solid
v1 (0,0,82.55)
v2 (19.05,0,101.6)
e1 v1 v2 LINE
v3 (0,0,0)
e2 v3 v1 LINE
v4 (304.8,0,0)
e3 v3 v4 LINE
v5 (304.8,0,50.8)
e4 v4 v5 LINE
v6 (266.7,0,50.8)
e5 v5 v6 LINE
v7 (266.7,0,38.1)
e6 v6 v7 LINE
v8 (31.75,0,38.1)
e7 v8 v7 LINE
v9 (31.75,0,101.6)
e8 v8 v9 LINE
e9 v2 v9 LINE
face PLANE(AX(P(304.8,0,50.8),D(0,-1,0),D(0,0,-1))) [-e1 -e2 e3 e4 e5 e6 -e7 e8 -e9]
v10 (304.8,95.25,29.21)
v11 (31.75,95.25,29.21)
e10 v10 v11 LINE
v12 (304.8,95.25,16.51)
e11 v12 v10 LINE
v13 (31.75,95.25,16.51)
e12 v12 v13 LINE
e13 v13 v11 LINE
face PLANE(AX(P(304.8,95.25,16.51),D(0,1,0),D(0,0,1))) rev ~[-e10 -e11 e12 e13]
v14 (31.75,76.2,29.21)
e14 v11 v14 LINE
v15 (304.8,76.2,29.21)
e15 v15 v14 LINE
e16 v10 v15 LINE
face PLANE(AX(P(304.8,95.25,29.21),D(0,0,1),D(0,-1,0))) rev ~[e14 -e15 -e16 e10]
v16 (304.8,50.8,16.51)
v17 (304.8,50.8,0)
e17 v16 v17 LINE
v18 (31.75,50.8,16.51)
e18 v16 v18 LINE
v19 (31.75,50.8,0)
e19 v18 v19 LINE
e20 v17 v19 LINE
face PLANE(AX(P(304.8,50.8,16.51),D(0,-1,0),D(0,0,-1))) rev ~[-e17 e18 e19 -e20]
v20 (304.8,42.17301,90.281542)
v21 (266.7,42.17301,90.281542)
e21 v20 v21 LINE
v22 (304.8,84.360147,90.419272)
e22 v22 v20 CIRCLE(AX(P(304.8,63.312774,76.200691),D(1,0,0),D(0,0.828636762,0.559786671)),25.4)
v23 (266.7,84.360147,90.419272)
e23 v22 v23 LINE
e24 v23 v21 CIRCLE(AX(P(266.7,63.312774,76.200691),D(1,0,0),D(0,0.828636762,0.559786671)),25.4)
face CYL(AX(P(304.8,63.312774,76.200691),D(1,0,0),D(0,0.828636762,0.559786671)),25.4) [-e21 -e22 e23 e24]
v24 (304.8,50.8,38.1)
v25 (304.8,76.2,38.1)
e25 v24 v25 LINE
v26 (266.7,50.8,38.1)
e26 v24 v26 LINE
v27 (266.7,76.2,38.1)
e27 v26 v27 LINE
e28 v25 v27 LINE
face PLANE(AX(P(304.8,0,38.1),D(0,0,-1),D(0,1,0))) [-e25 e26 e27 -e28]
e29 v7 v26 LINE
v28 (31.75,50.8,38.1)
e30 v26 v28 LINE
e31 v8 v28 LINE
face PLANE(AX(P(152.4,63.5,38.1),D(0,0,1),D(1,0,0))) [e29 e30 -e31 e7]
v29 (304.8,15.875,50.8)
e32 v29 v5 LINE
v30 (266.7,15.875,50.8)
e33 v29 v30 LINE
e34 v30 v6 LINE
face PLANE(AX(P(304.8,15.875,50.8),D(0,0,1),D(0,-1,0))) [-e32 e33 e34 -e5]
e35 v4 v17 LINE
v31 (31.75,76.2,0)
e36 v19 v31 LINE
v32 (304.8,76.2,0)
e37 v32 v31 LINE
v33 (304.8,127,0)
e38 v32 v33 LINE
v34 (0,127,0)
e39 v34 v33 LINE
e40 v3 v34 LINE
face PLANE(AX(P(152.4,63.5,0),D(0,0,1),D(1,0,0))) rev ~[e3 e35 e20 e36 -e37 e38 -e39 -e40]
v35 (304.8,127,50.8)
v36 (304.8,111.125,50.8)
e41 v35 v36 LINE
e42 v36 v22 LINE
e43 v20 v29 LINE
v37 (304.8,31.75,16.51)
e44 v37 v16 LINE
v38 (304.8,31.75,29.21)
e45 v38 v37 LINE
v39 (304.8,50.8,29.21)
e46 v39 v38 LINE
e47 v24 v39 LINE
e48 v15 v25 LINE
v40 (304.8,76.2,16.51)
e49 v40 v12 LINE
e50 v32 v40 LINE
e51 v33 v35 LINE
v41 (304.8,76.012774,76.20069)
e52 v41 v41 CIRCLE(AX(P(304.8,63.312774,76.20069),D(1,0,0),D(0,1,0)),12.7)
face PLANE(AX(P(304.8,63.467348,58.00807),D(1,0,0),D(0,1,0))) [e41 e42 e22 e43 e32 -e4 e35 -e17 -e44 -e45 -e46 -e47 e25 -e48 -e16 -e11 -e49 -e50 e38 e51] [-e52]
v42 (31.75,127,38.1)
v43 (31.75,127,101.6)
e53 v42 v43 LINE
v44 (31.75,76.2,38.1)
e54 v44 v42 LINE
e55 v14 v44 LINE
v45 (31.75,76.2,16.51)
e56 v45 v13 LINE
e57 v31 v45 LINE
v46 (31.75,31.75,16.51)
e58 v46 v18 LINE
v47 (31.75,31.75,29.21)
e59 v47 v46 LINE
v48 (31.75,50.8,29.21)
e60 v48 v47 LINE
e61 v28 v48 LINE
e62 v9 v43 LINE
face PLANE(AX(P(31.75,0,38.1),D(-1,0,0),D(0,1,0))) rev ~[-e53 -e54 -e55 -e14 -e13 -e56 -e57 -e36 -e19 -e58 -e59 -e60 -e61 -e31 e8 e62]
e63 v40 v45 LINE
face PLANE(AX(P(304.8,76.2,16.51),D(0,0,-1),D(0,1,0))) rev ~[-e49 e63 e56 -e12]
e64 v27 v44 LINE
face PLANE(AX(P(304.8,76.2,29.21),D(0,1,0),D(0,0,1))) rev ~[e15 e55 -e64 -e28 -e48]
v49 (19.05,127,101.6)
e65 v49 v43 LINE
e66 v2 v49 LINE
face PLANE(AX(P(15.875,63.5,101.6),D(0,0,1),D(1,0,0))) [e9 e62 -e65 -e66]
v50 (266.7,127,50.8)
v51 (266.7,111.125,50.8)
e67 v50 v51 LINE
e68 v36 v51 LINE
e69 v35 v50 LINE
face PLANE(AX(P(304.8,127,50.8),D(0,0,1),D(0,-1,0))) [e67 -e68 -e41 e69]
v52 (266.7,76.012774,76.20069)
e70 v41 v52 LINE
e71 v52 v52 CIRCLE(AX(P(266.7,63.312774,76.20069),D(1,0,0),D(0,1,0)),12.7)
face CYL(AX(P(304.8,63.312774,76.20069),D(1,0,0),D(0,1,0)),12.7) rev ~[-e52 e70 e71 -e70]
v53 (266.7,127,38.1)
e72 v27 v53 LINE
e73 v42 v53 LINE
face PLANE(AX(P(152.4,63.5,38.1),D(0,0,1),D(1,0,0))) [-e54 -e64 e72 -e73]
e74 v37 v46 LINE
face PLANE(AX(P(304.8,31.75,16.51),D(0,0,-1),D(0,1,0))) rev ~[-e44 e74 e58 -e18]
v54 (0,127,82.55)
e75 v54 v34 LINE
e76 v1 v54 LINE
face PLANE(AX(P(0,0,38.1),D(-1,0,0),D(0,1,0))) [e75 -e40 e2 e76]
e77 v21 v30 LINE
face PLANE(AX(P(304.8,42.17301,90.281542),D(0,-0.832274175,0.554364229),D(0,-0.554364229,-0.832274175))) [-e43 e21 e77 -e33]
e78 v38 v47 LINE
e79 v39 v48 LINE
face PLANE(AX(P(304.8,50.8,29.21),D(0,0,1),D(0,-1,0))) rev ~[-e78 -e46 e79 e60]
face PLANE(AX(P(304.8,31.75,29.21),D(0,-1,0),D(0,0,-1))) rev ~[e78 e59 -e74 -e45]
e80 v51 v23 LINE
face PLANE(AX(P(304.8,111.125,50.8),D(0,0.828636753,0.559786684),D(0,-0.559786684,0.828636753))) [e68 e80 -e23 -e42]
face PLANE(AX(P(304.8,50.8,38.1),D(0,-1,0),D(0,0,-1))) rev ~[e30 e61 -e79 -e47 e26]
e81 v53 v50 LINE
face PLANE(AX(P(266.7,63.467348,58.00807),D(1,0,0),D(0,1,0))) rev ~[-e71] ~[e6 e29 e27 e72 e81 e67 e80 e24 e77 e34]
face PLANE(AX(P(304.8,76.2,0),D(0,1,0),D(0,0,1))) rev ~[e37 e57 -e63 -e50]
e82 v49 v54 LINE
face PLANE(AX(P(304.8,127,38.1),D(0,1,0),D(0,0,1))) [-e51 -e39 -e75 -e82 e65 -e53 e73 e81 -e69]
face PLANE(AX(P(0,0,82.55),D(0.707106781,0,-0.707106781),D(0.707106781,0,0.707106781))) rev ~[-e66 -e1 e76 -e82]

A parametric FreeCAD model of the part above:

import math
import FreeCAD as App
import Part
import Sketcher

V = App.Vector
Q = App.Units.Quantity


def add_polygon(sketch, points):
    """Adds a closed chain of lines whose ends are joined by coincident constraints."""
    first, n = sketch.GeometryCount, len(points)
    for a, b in zip(points, points[1:] + points[:1]):
        sketch.addGeometry(Part.LineSegment(App.Vector(*a, 0), App.Vector(*b, 0)), False)
    for i in range(n):
        sketch.addConstraint(Sketcher.Constraint("Coincident", first + i, 2, first + (i + 1) % n, 1))

doc = App.newDocument("Part")
body = doc.addObject("PartDesign::Body", "Body")

sketch1 = body.newObject("Sketcher::SketchObject", "Sketch")
sketch1.AttachmentSupport = (doc.getObject("XY_Plane"), [""])
sketch1.MapMode = "FlatFace"
add_polygon(sketch1, [(0, 127), (0, 0), (305, 0), (305, 127)])
sketch1.addConstraint([
    Sketcher.Constraint("Vertical", 0),
    Sketcher.Constraint("Horizontal", 1),
    Sketcher.Constraint("Vertical", 2),
    Sketcher.Constraint("Horizontal", 3),
    Sketcher.Constraint("Coincident", 0, 2, -1, 1),
    Sketcher.Constraint("DistanceX", 1, 1, 1, 2, Q("12 in")),
    Sketcher.Constraint("DistanceY", 0, 2, 0, 1, Q("5 in")),
])
pad1 = body.newObject("PartDesign::Pad", "Pad")
pad1.Profile = sketch1
pad1.Length = Q("1.5 in")

sketch2 = body.newObject("Sketcher::SketchObject", "Sketch001")
sketch2.AttachmentSupport = (doc.getObject("XY_Plane"), [""])
sketch2.MapMode = "FlatFace"
sketch2.AttachmentOffset = App.Placement(V(0, 0, 1.5 * 25.4), App.Rotation())
add_polygon(sketch2, [(0, 127), (0, 0), (32, 0), (32, 127)])
sketch2.addConstraint([
    Sketcher.Constraint("Vertical", 0),
    Sketcher.Constraint("Horizontal", 1),
    Sketcher.Constraint("Vertical", 2),
    Sketcher.Constraint("Horizontal", 3),
    Sketcher.Constraint("Coincident", 0, 2, -1, 1),
    Sketcher.Constraint("DistanceY", 0, 2, 0, 1, Q("5 in")),
    Sketcher.Constraint("DistanceX", 1, 1, 1, 2, Q("1.25 in")),
])
pad2 = body.newObject("PartDesign::Pad", "Pad001")
pad2.Profile = sketch2
pad2.Length = Q("2.5 in")

sketch3 = body.newObject("Sketcher::SketchObject", "Sketch002")
sketch3.AttachmentSupport = (doc.getObject("XZ_Plane"), [""])
sketch3.MapMode = "FlatFace"
add_polygon(sketch3, [(19, 102), (0, 102), (0, 83)])
sketch3.addConstraint([
    Sketcher.Constraint("Horizontal", 0),
    Sketcher.Constraint("Vertical", 1),
    Sketcher.Constraint("PointOnObject", 0, 2, -2),
    Sketcher.Constraint("Equal", 0, 1),
    Sketcher.Constraint("DistanceY", -1, 1, 0, 2, Q("4 in")),
    Sketcher.Constraint("DistanceX", 0, 2, 0, 1, Q("0.75 in")),
])
pocket1 = body.newObject("PartDesign::Pocket", "Pocket")
pocket1.Profile = sketch3
pocket1.Type = "ThroughAll"

sketch4 = body.newObject("Sketcher::SketchObject", "Sketch003")
sketch4.AttachmentSupport = (doc.getObject("YZ_Plane"), [""])
sketch4.MapMode = "FlatFace"
sketch4.AttachmentOffset = App.Placement(V(0, 0, 12 * 25.4), App.Rotation())
add_polygon(sketch4, [(51, 17), (51, 0), (76, 0), (76, 17), (95, 17), (95, 29), (76, 29), (76, 38), (51, 38), (51, 29), (32, 29), (32, 17)])
sketch4.addConstraint([
    Sketcher.Constraint("Vertical", 0),
    Sketcher.Constraint("Horizontal", 1),
    Sketcher.Constraint("Vertical", 2),
    Sketcher.Constraint("Horizontal", 3),
    Sketcher.Constraint("Vertical", 4),
    Sketcher.Constraint("Horizontal", 5),
    Sketcher.Constraint("Vertical", 6),
    Sketcher.Constraint("Horizontal", 7),
    Sketcher.Constraint("Vertical", 8),
    Sketcher.Constraint("Horizontal", 9),
    Sketcher.Constraint("Vertical", 10),
    Sketcher.Constraint("Horizontal", 11),
    Sketcher.Constraint("PointOnObject", 0, 2, -1),
    Sketcher.Constraint("Horizontal", 5, 2, 8, 2),
    Sketcher.Constraint("Horizontal", 3, 2, 10, 2),
    Sketcher.Constraint("Vertical", 2, 2, 5, 2),
    Sketcher.Constraint("Vertical", 0, 2, 7, 2),
    Sketcher.Constraint("Equal", 5, 9),
    Sketcher.Constraint("DistanceX", 1, 1, 1, 2, Q("1 in")),
    Sketcher.Constraint("DistanceY", 4, 1, 4, 2, Q("0.5 in")),
    Sketcher.Constraint("DistanceX", -1, 1, 0, 2, Q("2 in")),
    Sketcher.Constraint("DistanceX", 3, 1, 3, 2, Q("0.75 in")),
    Sketcher.Constraint("DistanceY", 0, 2, 0, 1, Q("0.65 in")),
    Sketcher.Constraint("DistanceY", 6, 1, 6, 2, Q("0.35 in")),
])
pocket2 = body.newObject("PartDesign::Pocket", "Pocket001")
pocket2.Profile = sketch4
pocket2.Length = Q("10.75 in")

sketch5 = body.newObject("Sketcher::SketchObject", "Sketch004")
sketch5.AttachmentSupport = (doc.getObject("YZ_Plane"), [""])
sketch5.MapMode = "FlatFace"
sketch5.AttachmentOffset = App.Placement(V(0, 0, 12 * 25.4), App.Rotation())
sketch5.addGeometry([
    Part.LineSegment(V(0, 51, 0), V(0, 38, 0)),
    Part.LineSegment(V(0, 38, 0), V(127, 38, 0)),
    Part.LineSegment(V(127, 38, 0), V(127, 51, 0)),
    Part.LineSegment(V(127, 51, 0), V(111, 51, 0)),
    Part.LineSegment(V(111, 51, 0), V(84, 90, 0)),
    Part.ArcOfCircle(Part.Circle(V(63, 76, 0), V(0, 0, 1), 25), math.radians(34), math.radians(146)),
    Part.LineSegment(V(42, 90, 0), V(16, 51, 0)),
    Part.LineSegment(V(16, 51, 0), V(0, 51, 0)),
], False)
sketch5.addConstraint([
    Sketcher.Constraint("Coincident", 0, 2, 1, 1),
    Sketcher.Constraint("Coincident", 1, 2, 2, 1),
    Sketcher.Constraint("Coincident", 2, 2, 3, 1),
    Sketcher.Constraint("Coincident", 3, 2, 4, 1),
    Sketcher.Constraint("Tangent", 4, 2, 5, 1),
    Sketcher.Constraint("Tangent", 5, 2, 6, 1),
    Sketcher.Constraint("Coincident", 6, 2, 7, 1),
    Sketcher.Constraint("Coincident", 7, 2, 0, 1),
    Sketcher.Constraint("Vertical", 0),
    Sketcher.Constraint("Horizontal", 1),
    Sketcher.Constraint("Vertical", 2),
    Sketcher.Constraint("Horizontal", 3),
    Sketcher.Constraint("Horizontal", 7),
    Sketcher.Constraint("PointOnObject", 0, 2, -2),
    Sketcher.Constraint("Horizontal", 3, 2, 6, 2),
    Sketcher.Constraint("Equal", 3, 7),
    Sketcher.Constraint("Radius", 5, Q("1 in")),
    Sketcher.Constraint("DistanceX", 1, 1, 1, 2, Q("5 in")),
    Sketcher.Constraint("DistanceY", 0, 2, 0, 1, Q("0.5 in")),
    Sketcher.Constraint("DistanceY", -1, 1, 2, 2, Q("2 in")),
    Sketcher.Constraint("DistanceX", 3, 2, 3, 1, Q("0.625 in")),
    Sketcher.Constraint("DistanceY", -1, 1, 5, 3, 76.200691),
    Sketcher.Constraint("DistanceX", -1, 1, 5, 2, 42.17301),
])
pad3 = body.newObject("PartDesign::Pad", "Pad002")
pad3.Profile = sketch5
pad3.Length = Q("1.5 in")
pad3.Reversed = True

sketch6 = body.newObject("Sketcher::SketchObject", "Sketch005")
sketch6.AttachmentSupport = (doc.getObject("YZ_Plane"), [""])
sketch6.MapMode = "FlatFace"
sketch6.AttachmentOffset = App.Placement(V(0, 0, 12 * 25.4), App.Rotation())
sketch6.addGeometry(Part.Circle(V(63, 76, 0), V(0, 0, 1), 13), False)
sketch6.addConstraint([
    Sketcher.Constraint("Diameter", 0, Q("1 in")),
    Sketcher.Constraint("DistanceY", -1, 1, 0, 3, 76.20069),
    Sketcher.Constraint("DistanceX", -1, 1, 0, 3, 63.312774),
])
pocket3 = body.newObject("PartDesign::Pocket", "Pocket002")
pocket3.Profile = sketch6
pocket3.Length = Q("1.5 in")

doc.recompute()
